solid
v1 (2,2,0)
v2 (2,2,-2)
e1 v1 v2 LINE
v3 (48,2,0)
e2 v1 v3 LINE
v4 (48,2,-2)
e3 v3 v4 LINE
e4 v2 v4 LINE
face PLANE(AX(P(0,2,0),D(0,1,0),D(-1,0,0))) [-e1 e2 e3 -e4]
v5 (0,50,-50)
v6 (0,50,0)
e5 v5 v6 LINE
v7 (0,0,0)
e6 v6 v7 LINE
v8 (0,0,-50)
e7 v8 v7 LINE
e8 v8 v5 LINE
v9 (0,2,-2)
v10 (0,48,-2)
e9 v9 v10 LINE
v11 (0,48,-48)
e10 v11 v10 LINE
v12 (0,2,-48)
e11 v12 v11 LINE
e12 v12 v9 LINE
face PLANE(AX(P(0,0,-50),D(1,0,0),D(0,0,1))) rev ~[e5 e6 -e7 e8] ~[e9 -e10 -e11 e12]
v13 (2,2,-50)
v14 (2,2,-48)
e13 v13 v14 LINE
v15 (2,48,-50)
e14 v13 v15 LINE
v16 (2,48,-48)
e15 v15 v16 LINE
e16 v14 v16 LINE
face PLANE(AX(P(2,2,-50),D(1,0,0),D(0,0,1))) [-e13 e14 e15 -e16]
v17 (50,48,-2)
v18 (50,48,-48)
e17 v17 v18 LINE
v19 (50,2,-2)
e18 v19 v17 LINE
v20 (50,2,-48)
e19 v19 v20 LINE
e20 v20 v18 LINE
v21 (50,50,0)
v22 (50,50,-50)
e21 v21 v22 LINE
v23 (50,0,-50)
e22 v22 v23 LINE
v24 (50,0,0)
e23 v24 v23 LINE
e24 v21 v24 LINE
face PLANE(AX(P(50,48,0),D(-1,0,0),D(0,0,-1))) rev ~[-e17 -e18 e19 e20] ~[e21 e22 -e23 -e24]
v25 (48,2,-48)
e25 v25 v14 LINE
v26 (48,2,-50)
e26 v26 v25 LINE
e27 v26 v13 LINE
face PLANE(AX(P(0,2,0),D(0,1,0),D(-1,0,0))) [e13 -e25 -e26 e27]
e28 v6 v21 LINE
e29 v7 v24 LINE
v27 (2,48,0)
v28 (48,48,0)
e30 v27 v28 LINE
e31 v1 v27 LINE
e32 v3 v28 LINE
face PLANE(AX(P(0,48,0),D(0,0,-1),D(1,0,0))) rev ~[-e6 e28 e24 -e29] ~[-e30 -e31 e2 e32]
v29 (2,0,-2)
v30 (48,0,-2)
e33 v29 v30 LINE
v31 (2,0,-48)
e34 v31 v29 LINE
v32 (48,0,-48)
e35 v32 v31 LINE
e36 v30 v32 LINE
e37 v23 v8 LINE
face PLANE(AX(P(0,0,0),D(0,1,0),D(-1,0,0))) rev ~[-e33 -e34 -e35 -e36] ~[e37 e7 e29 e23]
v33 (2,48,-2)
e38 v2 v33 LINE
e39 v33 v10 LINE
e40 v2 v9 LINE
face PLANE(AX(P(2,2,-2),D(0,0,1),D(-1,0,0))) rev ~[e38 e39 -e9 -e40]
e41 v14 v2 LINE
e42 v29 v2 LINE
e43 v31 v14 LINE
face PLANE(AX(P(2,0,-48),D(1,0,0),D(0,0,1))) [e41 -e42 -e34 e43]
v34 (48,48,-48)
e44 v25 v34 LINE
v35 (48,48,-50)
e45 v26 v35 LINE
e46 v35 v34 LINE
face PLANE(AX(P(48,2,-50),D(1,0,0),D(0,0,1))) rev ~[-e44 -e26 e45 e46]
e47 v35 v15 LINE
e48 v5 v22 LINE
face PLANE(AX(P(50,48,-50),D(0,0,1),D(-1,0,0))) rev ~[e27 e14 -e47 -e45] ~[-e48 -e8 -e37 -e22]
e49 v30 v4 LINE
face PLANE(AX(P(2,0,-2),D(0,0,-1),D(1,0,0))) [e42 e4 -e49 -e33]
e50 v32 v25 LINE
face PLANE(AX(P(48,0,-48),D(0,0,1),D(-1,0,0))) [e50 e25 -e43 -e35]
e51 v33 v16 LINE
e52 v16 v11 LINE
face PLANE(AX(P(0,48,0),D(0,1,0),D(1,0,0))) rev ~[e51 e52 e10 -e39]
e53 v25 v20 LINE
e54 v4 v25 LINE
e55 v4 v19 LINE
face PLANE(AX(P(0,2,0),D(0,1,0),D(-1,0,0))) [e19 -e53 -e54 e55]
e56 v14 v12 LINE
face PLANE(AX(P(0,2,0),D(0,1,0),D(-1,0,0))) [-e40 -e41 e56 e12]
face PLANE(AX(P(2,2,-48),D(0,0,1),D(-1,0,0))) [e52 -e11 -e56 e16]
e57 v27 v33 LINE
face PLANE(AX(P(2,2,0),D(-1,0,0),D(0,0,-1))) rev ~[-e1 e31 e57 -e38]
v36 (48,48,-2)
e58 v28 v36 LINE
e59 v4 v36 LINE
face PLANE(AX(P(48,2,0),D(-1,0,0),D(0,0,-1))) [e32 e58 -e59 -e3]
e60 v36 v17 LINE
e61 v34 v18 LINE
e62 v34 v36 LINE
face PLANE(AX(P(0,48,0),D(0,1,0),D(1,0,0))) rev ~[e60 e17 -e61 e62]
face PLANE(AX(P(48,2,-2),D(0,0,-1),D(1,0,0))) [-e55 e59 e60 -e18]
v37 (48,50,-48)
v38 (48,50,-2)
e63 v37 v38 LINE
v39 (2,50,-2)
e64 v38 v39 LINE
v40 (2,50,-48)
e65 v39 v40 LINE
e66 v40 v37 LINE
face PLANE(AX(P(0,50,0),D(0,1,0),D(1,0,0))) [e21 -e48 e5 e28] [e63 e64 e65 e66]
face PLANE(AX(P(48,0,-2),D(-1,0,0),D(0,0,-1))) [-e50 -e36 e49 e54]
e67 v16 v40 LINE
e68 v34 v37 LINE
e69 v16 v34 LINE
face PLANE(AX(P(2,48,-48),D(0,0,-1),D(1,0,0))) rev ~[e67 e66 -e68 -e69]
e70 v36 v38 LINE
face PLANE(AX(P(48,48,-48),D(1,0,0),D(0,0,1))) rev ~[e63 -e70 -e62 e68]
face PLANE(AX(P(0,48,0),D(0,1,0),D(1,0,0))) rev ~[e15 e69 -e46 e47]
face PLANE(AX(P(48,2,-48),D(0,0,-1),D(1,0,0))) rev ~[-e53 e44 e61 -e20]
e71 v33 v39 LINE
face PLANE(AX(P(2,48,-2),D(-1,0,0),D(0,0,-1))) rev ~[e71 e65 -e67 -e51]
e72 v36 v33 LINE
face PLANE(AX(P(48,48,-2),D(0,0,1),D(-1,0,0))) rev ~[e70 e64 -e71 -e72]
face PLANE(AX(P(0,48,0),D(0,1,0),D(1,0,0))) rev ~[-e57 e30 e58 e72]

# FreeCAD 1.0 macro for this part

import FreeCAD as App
import Part
import Sketcher
Q = App.Units.Quantity


def add_polygon(sketch, points):
    """Adds a closed chain of lines whose ends are joined by coincident constraints."""
    first, n = sketch.GeometryCount, len(points)
    for a, b in zip(points, points[1:] + points[:1]):
        sketch.addGeometry(Part.LineSegment(App.Vector(*a, 0), App.Vector(*b, 0)), False)
    for i in range(n):
        sketch.addConstraint(Sketcher.Constraint("Coincident", first + i, 2, first + (i + 1) % n, 1))

doc = App.newDocument("Part")
body = doc.addObject("PartDesign::Body", "Body")

# Sketch on XZ plane
sketch1 = body.newObject("Sketcher::SketchObject", "Sketch")
sketch1.AttachmentSupport = (doc.getObject("XZ_Plane"), [""])
sketch1.MapMode = "FlatFace"
add_polygon(sketch1, [(0, -50), (0, 0), (50, 0), (50, -50)])  # lines 0-3
add_polygon(sketch1, [(48, -2), (2, -2), (2, -48), (48, -48)])  # lines 4-7
sketch1.addConstraint([
    Sketcher.Constraint("Vertical", 0),
    Sketcher.Constraint("Horizontal", 1),
    Sketcher.Constraint("Vertical", 2),
    Sketcher.Constraint("Horizontal", 3),
    Sketcher.Constraint("Horizontal", 4),
    Sketcher.Constraint("Vertical", 5),
    Sketcher.Constraint("Horizontal", 6),
    Sketcher.Constraint("Vertical", 7),
    Sketcher.Constraint("Coincident", 0, 2, -1, 1),
    Sketcher.Constraint("Equal", 3, 0),
    Sketcher.Constraint("Equal", 6, 5),
    Sketcher.Constraint("DistanceX", 1, 1, 1, 2, Q("50 mm")),
    Sketcher.Constraint("DistanceX", -1, 1, 4, 2, Q("2 mm")),
    Sketcher.Constraint("DistanceY", 4, 2, -1, 1, Q("2 mm")),
    Sketcher.Constraint("DistanceY", 3, 2, 5, 2, Q("2 mm")),
])
pad1 = body.newObject("PartDesign::Pad", "Pad")
pad1.Profile = sketch1
pad1.Length = 2
pad1.Reversed = True

# Sketch on XZ plane
sketch2 = body.newObject("Sketcher::SketchObject", "Sketch001")
sketch2.AttachmentSupport = (doc.getObject("XZ_Plane"), [""])
sketch2.MapMode = "FlatFace"
sketch2.AttachmentOffset = App.Placement(App.Vector(0, 0, -2), App.Rotation())
add_polygon(sketch2, [(48, 0), (50, 0), (50, -2), (48, -2)])  # lines 0-3
add_polygon(sketch2, [(48, -48), (50, -48), (50, -50), (48, -50)])  # lines 4-7
add_polygon(sketch2, [(0, 0), (2, 0), (2, -2), (0, -2)])  # lines 8-11
add_polygon(sketch2, [(0, -48), (2, -48), (2, -50), (0, -50)])  # lines 12-15
sketch2.addConstraint([
    Sketcher.Constraint("Horizontal", 0),
    Sketcher.Constraint("Vertical", 1),
    Sketcher.Constraint("Horizontal", 2),
    Sketcher.Constraint("Vertical", 3),
    Sketcher.Constraint("Horizontal", 4),
    Sketcher.Constraint("Vertical", 5),
    Sketcher.Constraint("Horizontal", 6),
    Sketcher.Constraint("Vertical", 7),
    Sketcher.Constraint("Horizontal", 8),
    Sketcher.Constraint("Vertical", 9),
    Sketcher.Constraint("Horizontal", 10),
    Sketcher.Constraint("Vertical", 11),
    Sketcher.Constraint("Horizontal", 12),
    Sketcher.Constraint("Vertical", 13),
    Sketcher.Constraint("Horizontal", 14),
    Sketcher.Constraint("Vertical", 15),
    Sketcher.Constraint("Coincident", 11, 2, -1, 1),
    Sketcher.Constraint("PointOnObject", 0, 2, -1),
    Sketcher.Constraint("PointOnObject", 14, 2, -2),
    Sketcher.Constraint("Horizontal", 2, 2, 9, 2),
    Sketcher.Constraint("Horizontal", 7, 2, 12, 2),
    Sketcher.Constraint("Horizontal", 6, 2, 13, 2),
    Sketcher.Constraint("Vertical", 1, 2, 4, 2),
    Sketcher.Constraint("Vertical", 3, 2, 6, 2),
    Sketcher.Constraint("Vertical", 9, 2, 12, 2),
    Sketcher.Constraint("Equal", 6, 8),
    Sketcher.Constraint("Equal", 14, 1),
    Sketcher.Constraint("Equal", 3, 5),
    Sketcher.Constraint("DistanceX", 0, 1, 0, 2, Q("2 mm")),
    Sketcher.Constraint("DistanceX", -1, 1, 0, 2, Q("50 mm")),
    Sketcher.Constraint("DistanceY", 4, 2, -1, 1, Q("48 mm")),
])
pad2 = body.newObject("PartDesign::Pad", "Pad001")
pad2.Profile = sketch2
pad2.Length = 46
pad2.Reversed = True

# Sketch on XZ plane
sketch3 = body.newObject("Sketcher::SketchObject", "Sketch002")
sketch3.AttachmentSupport = (doc.getObject("XZ_Plane"), [""])
sketch3.MapMode = "FlatFace"
sketch3.AttachmentOffset = App.Placement(App.Vector(0, 0, -48), App.Rotation())
add_polygon(sketch3, [(50, -50), (0, -50), (0, 0), (50, 0)])  # lines 0-3
add_polygon(sketch3, [(48, -2), (2, -2), (2, -48), (48, -48)])  # lines 4-7
sketch3.addConstraint([
    Sketcher.Constraint("Horizontal", 0),
    Sketcher.Constraint("Vertical", 1),
    Sketcher.Constraint("Horizontal", 2),
    Sketcher.Constraint("Vertical", 3),
    Sketcher.Constraint("Horizontal", 4),
    Sketcher.Constraint("Vertical", 5),
    Sketcher.Constraint("Horizontal", 6),
    Sketcher.Constraint("Vertical", 7),
    Sketcher.Constraint("Coincident", 1, 2, -1, 1),
    Sketcher.Constraint("Equal", 2, 1),
    Sketcher.Constraint("Equal", 6, 5),
    Sketcher.Constraint("DistanceX", 0, 2, 0, 1, Q("50 mm")),
    Sketcher.Constraint("DistanceX", 4, 2, 4, 1, Q("46 mm")),
    Sketcher.Constraint("DistanceX", -1, 1, 4, 2, Q("2 mm")),
    Sketcher.Constraint("DistanceY", 4, 2, -1, 1, Q("2 mm")),
])
pad3 = body.newObject("PartDesign::Pad", "Pad002")
pad3.Profile = sketch3
pad3.Length = 2
pad3.Reversed = True

doc.recompute()
